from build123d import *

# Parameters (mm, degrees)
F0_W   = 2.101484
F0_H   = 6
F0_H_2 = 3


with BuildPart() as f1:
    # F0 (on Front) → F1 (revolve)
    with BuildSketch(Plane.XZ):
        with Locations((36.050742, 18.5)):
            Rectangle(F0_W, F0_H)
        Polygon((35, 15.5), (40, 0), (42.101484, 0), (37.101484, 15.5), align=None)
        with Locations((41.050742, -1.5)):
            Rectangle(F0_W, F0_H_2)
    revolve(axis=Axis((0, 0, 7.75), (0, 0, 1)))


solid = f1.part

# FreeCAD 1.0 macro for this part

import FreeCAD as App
import Part
import Sketcher
Q = App.Units.Quantity


def add_polygon(sketch, points):
    """Adds a closed chain of lines whose ends are joined by coincident constraints."""
    first, n = sketch.GeometryCount, len(points)
    for a, b in zip(points, points[1:] + points[:1]):
        sketch.addGeometry(Part.LineSegment(App.Vector(*a, 0), App.Vector(*b, 0)), False)
    for i in range(n):
        sketch.addConstraint(Sketcher.Constraint("Coincident", first + i, 2, first + (i + 1) % n, 1))

doc = App.newDocument("Part")
body = doc.addObject("PartDesign::Body", "Body")

sketch1 = body.newObject("Sketcher::SketchObject", "Sketch")
sketch1.AttachmentSupport = (doc.getObject("XZ_Plane"), [""])
sketch1.MapMode = "FlatFace"
add_polygon(sketch1, [(35, 21.5), (35, 15.5), (40, 0), (40, -3), (42.1, -3), (42.1, 0), (37.1, 15.5), (37.1, 21.5)])
sketch1.addConstraint(Sketcher.Constraint("Vertical", 0))
sketch1.addConstraint(Sketcher.Constraint("Vertical", 2))
sketch1.addConstraint(Sketcher.Constraint("Horizontal", 3))
sketch1.addConstraint(Sketcher.Constraint("Vertical", 4))
sketch1.addConstraint(Sketcher.Constraint("Vertical", 6))
sketch1.addConstraint(Sketcher.Constraint("Horizontal", 7))
sketch1.addConstraint(Sketcher.Constraint("PointOnObject", 1, 2, -1))
sketch1.addConstraint(Sketcher.Constraint("PointOnObject", 4, 2, -1))
sketch1.addConstraint(Sketcher.Constraint("Parallel", 1, 5))
sketch1.addConstraint(Sketcher.Constraint("Horizontal", 0, 2, 5, 2))
sketch1.addConstraint(Sketcher.Constraint("DistanceY", 0, 2, 0, 1, Q("6 mm")))
sketch1.addConstraint(Sketcher.Constraint("DistanceY", 2, 2, 2, 1, Q("3 mm")))
sketch1.addConstraint(Sketcher.Constraint("DistanceX", -1, 1, 0, 2, Q("35 mm")))
sketch1.addConstraint(Sketcher.Constraint("DistanceX", -1, 1, 1, 2, Q("40 mm")))
sketch1.addConstraint(Sketcher.Constraint("DistanceY", -1, 1, 0, 2, Q("15.5 mm")))
sketch1.addConstraint(Sketcher.Constraint("DistanceX", 3, 1, 3, 2, Q("2.101484 mm")))
revolution = body.newObject("PartDesign::Revolution", "Revolution")
revolution.Profile = sketch1
revolution.ReferenceAxis = (sketch1, ["V_Axis"])
revolution.Angle = 360

doc.recompute()
